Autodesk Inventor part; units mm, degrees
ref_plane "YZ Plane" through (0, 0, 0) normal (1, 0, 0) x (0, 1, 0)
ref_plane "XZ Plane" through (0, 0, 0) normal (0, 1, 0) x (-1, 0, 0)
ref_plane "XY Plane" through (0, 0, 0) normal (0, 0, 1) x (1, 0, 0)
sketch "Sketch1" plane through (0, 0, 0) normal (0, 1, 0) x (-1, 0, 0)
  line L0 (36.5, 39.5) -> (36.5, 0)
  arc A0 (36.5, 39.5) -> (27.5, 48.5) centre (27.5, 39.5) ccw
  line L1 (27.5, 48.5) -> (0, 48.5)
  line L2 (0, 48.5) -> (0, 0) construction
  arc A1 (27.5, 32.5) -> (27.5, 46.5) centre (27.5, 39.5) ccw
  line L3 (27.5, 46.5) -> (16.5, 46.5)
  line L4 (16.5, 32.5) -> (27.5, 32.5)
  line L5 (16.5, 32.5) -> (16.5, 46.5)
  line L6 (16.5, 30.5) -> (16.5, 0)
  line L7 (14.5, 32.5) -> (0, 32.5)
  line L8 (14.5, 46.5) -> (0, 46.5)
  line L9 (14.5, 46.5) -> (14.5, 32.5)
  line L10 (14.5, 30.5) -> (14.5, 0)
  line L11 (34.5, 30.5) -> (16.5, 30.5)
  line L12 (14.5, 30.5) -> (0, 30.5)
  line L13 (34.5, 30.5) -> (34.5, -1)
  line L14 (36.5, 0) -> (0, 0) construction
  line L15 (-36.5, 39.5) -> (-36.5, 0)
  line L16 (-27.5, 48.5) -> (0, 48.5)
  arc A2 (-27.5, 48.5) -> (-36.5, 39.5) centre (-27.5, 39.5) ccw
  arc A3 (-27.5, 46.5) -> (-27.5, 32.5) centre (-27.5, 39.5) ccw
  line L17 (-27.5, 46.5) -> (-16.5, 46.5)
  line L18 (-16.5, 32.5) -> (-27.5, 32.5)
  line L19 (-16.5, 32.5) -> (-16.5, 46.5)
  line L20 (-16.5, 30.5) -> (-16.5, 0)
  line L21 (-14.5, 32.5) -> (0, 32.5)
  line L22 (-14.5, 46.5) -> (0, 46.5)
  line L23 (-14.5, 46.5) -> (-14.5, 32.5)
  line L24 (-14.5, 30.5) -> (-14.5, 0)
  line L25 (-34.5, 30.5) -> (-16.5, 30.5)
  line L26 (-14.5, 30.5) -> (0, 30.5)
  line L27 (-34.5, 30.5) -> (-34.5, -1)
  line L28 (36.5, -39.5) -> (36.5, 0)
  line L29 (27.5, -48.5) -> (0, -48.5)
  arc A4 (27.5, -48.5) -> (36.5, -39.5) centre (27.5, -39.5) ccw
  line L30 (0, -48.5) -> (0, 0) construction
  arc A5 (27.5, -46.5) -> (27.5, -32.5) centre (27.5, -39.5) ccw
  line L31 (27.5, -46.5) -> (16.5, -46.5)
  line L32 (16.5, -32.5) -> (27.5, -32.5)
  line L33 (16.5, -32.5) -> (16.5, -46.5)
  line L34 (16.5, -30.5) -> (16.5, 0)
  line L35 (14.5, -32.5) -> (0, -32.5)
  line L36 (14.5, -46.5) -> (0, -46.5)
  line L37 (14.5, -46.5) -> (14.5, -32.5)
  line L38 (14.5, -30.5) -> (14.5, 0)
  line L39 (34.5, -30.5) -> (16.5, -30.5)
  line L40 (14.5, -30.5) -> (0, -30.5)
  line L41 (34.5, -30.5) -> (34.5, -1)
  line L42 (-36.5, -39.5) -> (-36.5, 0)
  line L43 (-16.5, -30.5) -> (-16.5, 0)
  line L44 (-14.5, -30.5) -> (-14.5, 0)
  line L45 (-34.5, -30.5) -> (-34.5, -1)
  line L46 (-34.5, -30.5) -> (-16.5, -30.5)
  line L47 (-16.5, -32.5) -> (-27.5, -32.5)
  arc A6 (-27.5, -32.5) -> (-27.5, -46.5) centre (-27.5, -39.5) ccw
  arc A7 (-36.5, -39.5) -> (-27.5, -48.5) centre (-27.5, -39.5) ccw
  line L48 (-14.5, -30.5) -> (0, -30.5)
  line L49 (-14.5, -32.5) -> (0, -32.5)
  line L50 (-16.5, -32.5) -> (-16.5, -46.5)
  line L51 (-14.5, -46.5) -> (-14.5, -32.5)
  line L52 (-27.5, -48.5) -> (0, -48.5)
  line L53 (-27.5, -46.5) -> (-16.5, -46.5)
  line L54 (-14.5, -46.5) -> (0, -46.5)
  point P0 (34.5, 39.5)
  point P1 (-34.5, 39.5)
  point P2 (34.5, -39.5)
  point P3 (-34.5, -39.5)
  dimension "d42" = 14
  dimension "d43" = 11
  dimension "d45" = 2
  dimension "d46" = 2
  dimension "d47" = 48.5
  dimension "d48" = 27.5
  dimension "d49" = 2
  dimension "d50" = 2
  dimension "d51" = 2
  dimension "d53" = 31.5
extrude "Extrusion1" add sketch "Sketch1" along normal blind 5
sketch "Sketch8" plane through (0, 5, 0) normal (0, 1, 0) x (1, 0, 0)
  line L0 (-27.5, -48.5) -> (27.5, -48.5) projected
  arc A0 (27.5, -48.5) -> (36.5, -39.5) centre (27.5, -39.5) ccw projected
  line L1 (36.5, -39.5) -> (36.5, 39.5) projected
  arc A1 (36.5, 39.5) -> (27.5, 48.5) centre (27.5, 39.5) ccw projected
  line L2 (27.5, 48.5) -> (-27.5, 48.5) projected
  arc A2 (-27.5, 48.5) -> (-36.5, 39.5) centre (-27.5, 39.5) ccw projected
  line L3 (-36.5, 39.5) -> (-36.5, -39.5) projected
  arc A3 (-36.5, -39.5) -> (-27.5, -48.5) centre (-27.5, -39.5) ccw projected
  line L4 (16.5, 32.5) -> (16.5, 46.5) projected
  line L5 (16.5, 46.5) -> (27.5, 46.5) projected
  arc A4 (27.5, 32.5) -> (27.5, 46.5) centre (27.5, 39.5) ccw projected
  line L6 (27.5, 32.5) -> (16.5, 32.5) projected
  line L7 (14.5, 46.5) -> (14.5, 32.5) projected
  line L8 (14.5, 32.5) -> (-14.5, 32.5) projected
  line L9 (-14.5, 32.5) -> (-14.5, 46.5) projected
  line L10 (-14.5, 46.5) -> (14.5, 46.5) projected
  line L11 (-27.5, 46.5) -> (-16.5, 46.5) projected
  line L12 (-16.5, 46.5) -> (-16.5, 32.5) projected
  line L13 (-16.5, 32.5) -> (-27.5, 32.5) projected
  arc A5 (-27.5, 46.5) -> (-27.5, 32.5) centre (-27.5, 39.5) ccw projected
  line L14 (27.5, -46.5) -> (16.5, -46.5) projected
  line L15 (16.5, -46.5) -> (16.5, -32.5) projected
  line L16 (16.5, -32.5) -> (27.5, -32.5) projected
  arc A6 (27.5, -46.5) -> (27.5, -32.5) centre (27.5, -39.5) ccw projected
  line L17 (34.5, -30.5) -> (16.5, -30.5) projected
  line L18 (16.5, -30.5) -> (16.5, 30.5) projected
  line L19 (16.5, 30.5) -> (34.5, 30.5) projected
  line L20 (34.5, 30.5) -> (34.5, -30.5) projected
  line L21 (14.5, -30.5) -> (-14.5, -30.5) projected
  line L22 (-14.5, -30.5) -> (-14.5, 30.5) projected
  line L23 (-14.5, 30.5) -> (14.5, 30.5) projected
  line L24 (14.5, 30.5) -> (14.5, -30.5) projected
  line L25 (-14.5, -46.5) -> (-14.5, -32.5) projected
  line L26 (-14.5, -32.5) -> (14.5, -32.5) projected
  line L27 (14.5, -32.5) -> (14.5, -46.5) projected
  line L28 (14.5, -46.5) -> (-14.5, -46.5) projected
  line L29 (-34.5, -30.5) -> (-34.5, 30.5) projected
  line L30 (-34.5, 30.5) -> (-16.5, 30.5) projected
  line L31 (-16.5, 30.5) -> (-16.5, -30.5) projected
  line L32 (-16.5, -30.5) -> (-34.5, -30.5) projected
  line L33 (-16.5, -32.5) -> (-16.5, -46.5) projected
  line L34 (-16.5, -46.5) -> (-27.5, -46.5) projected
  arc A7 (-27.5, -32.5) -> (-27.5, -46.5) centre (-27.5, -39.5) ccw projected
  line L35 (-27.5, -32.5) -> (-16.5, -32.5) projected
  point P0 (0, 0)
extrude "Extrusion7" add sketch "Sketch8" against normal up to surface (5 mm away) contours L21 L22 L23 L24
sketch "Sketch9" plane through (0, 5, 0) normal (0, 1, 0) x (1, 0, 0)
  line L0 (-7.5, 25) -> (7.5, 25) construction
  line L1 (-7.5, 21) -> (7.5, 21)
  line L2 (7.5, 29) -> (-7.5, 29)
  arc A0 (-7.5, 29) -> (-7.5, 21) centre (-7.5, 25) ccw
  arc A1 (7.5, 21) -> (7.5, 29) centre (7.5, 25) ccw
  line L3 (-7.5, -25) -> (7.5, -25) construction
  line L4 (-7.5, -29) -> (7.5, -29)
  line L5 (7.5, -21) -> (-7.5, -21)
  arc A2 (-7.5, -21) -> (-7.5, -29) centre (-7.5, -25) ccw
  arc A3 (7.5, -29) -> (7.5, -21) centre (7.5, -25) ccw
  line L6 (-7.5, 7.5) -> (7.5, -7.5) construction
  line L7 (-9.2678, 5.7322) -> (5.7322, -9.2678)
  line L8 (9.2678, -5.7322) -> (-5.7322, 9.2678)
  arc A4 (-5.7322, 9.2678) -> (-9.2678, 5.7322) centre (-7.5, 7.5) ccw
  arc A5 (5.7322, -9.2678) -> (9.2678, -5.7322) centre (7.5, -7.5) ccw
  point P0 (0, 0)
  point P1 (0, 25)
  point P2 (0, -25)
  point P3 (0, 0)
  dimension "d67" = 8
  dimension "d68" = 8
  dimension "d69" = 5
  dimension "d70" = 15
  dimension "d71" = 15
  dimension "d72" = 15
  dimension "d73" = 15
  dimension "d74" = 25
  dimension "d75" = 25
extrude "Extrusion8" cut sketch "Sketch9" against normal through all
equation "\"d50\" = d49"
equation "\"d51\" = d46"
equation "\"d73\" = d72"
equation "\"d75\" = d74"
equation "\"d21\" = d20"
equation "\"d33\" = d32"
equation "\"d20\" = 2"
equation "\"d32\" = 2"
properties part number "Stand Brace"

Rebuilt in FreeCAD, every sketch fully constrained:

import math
import FreeCAD as App
import Part
import Sketcher

V = App.Vector


def add_polygon(sketch, points):
    """Adds a closed chain of lines whose ends are joined by coincident constraints."""
    first, n = sketch.GeometryCount, len(points)
    for a, b in zip(points, points[1:] + points[:1]):
        sketch.addGeometry(Part.LineSegment(App.Vector(*a, 0), App.Vector(*b, 0)), False)
    for i in range(n):
        sketch.addConstraint(Sketcher.Constraint("Coincident", first + i, 2, first + (i + 1) % n, 1))

doc = App.newDocument("Part")
body = doc.addObject("PartDesign::Body", "Body")

# Sketch on XZ plane
sketch1 = body.newObject("Sketcher::SketchObject", "Sketch")
sketch1.AttachmentSupport = (doc.getObject("XZ_Plane"), [""])
sketch1.MapMode = "FlatFace"
sketch1.addGeometry(Part.LineSegment(V(-36.5, -39.5, 0), V(-36.5, 39.5, 0)), False)  # 0
sketch1.addGeometry(Part.ArcOfCircle(Part.Circle(V(-27.5, 39.5, 0), V(0, 0, 1), 9), math.radians(90), math.radians(180)), False)  # 1
sketch1.addGeometry(Part.LineSegment(V(-27.5, 48.5, 0), V(27.5, 48.5, 0)), False)  # 2
sketch1.addGeometry(Part.ArcOfCircle(Part.Circle(V(27.5, 39.5, 0), V(0, 0, 1), 9), math.radians(0), math.radians(90)), False)  # 3
sketch1.addGeometry(Part.LineSegment(V(36.5, 39.5, 0), V(36.5, -39.5, 0)), False)  # 4
sketch1.addGeometry(Part.ArcOfCircle(Part.Circle(V(27.5, -39.5, 0), V(0, 0, 1), 9), math.radians(-90), math.radians(0)), False)  # 5
sketch1.addGeometry(Part.LineSegment(V(27.5, -48.5, 0), V(-27.5, -48.5, 0)), False)  # 6
sketch1.addGeometry(Part.ArcOfCircle(Part.Circle(V(-27.5, -39.5, 0), V(0, 0, 1), 9), math.radians(180), math.radians(270)), False)  # 7
sketch1.addGeometry(Part.LineSegment(V(27.5, -32.5, 0), V(16.5, -32.5, 0)), False)  # 8
sketch1.addGeometry(Part.LineSegment(V(16.5, -32.5, 0), V(16.5, -46.5, 0)), False)  # 9
sketch1.addGeometry(Part.LineSegment(V(16.5, -46.5, 0), V(27.5, -46.5, 0)), False)  # 10
sketch1.addGeometry(Part.ArcOfCircle(Part.Circle(V(27.5, -39.5, 0), V(0, 0, 1), 7), math.radians(-90), math.radians(90)), False)  # 11
add_polygon(sketch1, [(14.5, -32.5), (-14.5, -32.5), (-14.5, -46.5), (14.5, -46.5)])  # lines 12-15
sketch1.addGeometry(Part.ArcOfCircle(Part.Circle(V(-27.5, -39.5, 0), V(0, 0, 1), 7), math.radians(90), math.radians(270)), False)  # 16
sketch1.addGeometry(Part.LineSegment(V(-27.5, -46.5, 0), V(-16.5, -46.5, 0)), False)  # 17
sketch1.addGeometry(Part.LineSegment(V(-16.5, -46.5, 0), V(-16.5, -32.5, 0)), False)  # 18
sketch1.addGeometry(Part.LineSegment(V(-16.5, -32.5, 0), V(-27.5, -32.5, 0)), False)  # 19
add_polygon(sketch1, [(34.5, 30.5), (16.5, 30.5), (16.5, -30.5), (34.5, -30.5)])  # lines 20-23
sketch1.addGeometry(Part.ArcOfCircle(Part.Circle(V(27.5, 39.5, 0), V(0, 0, 1), 7), math.radians(-90), math.radians(90)), False)  # 24
sketch1.addGeometry(Part.LineSegment(V(27.5, 46.5, 0), V(16.5, 46.5, 0)), False)  # 25
sketch1.addGeometry(Part.LineSegment(V(16.5, 46.5, 0), V(16.5, 32.5, 0)), False)  # 26
sketch1.addGeometry(Part.LineSegment(V(16.5, 32.5, 0), V(27.5, 32.5, 0)), False)  # 27
add_polygon(sketch1, [(14.5, 30.5), (-14.5, 30.5), (-14.5, -30.5), (14.5, -30.5)])  # lines 28-31
add_polygon(sketch1, [(-16.5, -30.5), (-16.5, 30.5), (-34.5, 30.5), (-34.5, -30.5)])  # lines 32-35
add_polygon(sketch1, [(-14.5, 46.5), (-14.5, 32.5), (14.5, 32.5), (14.5, 46.5)])  # lines 36-39
sketch1.addGeometry(Part.ArcOfCircle(Part.Circle(V(-27.5, 39.5, 0), V(0, 0, 1), 7), math.radians(90), math.radians(270)), False)  # 40
sketch1.addGeometry(Part.LineSegment(V(-27.5, 32.5, 0), V(-16.5, 32.5, 0)), False)  # 41
sketch1.addGeometry(Part.LineSegment(V(-16.5, 32.5, 0), V(-16.5, 46.5, 0)), False)  # 42
sketch1.addGeometry(Part.LineSegment(V(-16.5, 46.5, 0), V(-27.5, 46.5, 0)), False)  # 43
sketch1.addConstraint(Sketcher.Constraint("Tangent", 0, 2, 1, 2))
sketch1.addConstraint(Sketcher.Constraint("Tangent", 1, 1, 2, 1))
sketch1.addConstraint(Sketcher.Constraint("Tangent", 2, 2, 3, 2))
sketch1.addConstraint(Sketcher.Constraint("Tangent", 3, 1, 4, 1))
sketch1.addConstraint(Sketcher.Constraint("Tangent", 4, 2, 5, 2))
sketch1.addConstraint(Sketcher.Constraint("Tangent", 5, 1, 6, 1))
sketch1.addConstraint(Sketcher.Constraint("Tangent", 6, 2, 7, 2))
sketch1.addConstraint(Sketcher.Constraint("Tangent", 7, 1, 0, 1))
sketch1.addConstraint(Sketcher.Constraint("Coincident", 8, 2, 9, 1))
sketch1.addConstraint(Sketcher.Constraint("Coincident", 9, 2, 10, 1))
sketch1.addConstraint(Sketcher.Constraint("Tangent", 10, 2, 11, 1))
sketch1.addConstraint(Sketcher.Constraint("Tangent", 11, 2, 8, 1))
sketch1.addConstraint(Sketcher.Constraint("Tangent", 16, 2, 17, 1))
sketch1.addConstraint(Sketcher.Constraint("Coincident", 17, 2, 18, 1))
sketch1.addConstraint(Sketcher.Constraint("Coincident", 18, 2, 19, 1))
sketch1.addConstraint(Sketcher.Constraint("Tangent", 19, 2, 16, 1))
sketch1.addConstraint(Sketcher.Constraint("Tangent", 24, 2, 25, 1))
sketch1.addConstraint(Sketcher.Constraint("Coincident", 25, 2, 26, 1))
sketch1.addConstraint(Sketcher.Constraint("Coincident", 26, 2, 27, 1))
sketch1.addConstraint(Sketcher.Constraint("Tangent", 27, 2, 24, 1))
sketch1.addConstraint(Sketcher.Constraint("Tangent", 40, 2, 41, 1))
sketch1.addConstraint(Sketcher.Constraint("Coincident", 41, 2, 42, 1))
sketch1.addConstraint(Sketcher.Constraint("Coincident", 42, 2, 43, 1))
sketch1.addConstraint(Sketcher.Constraint("Tangent", 43, 2, 40, 1))
sketch1.addConstraint(Sketcher.Constraint("Vertical", 0))
sketch1.addConstraint(Sketcher.Constraint("Horizontal", 2))
sketch1.addConstraint(Sketcher.Constraint("Vertical", 4))
sketch1.addConstraint(Sketcher.Constraint("Horizontal", 6))
sketch1.addConstraint(Sketcher.Constraint("Horizontal", 8))
sketch1.addConstraint(Sketcher.Constraint("Vertical", 9))
sketch1.addConstraint(Sketcher.Constraint("Horizontal", 10))
sketch1.addConstraint(Sketcher.Constraint("Horizontal", 12))
sketch1.addConstraint(Sketcher.Constraint("Vertical", 13))
sketch1.addConstraint(Sketcher.Constraint("Horizontal", 14))
sketch1.addConstraint(Sketcher.Constraint("Vertical", 15))
sketch1.addConstraint(Sketcher.Constraint("Horizontal", 17))
sketch1.addConstraint(Sketcher.Constraint("Vertical", 18))
sketch1.addConstraint(Sketcher.Constraint("Horizontal", 19))
sketch1.addConstraint(Sketcher.Constraint("Horizontal", 20))
sketch1.addConstraint(Sketcher.Constraint("Vertical", 21))
sketch1.addConstraint(Sketcher.Constraint("Horizontal", 22))
sketch1.addConstraint(Sketcher.Constraint("Vertical", 23))
sketch1.addConstraint(Sketcher.Constraint("Horizontal", 25))
sketch1.addConstraint(Sketcher.Constraint("Vertical", 26))
sketch1.addConstraint(Sketcher.Constraint("Horizontal", 27))
sketch1.addConstraint(Sketcher.Constraint("Horizontal", 28))
sketch1.addConstraint(Sketcher.Constraint("Vertical", 29))
sketch1.addConstraint(Sketcher.Constraint("Horizontal", 30))
sketch1.addConstraint(Sketcher.Constraint("Vertical", 31))
sketch1.addConstraint(Sketcher.Constraint("Vertical", 32))
sketch1.addConstraint(Sketcher.Constraint("Horizontal", 33))
sketch1.addConstraint(Sketcher.Constraint("Vertical", 34))
sketch1.addConstraint(Sketcher.Constraint("Horizontal", 35))
sketch1.addConstraint(Sketcher.Constraint("Vertical", 36))
sketch1.addConstraint(Sketcher.Constraint("Horizontal", 37))
sketch1.addConstraint(Sketcher.Constraint("Vertical", 38))
sketch1.addConstraint(Sketcher.Constraint("Horizontal", 39))
sketch1.addConstraint(Sketcher.Constraint("Horizontal", 41))
sketch1.addConstraint(Sketcher.Constraint("Vertical", 42))
sketch1.addConstraint(Sketcher.Constraint("Horizontal", 43))
sketch1.addConstraint(Sketcher.Constraint("Coincident", 11, 3, 5, 3))
sketch1.addConstraint(Sketcher.Constraint("Coincident", 16, 3, 7, 3))
sketch1.addConstraint(Sketcher.Constraint("Coincident", 24, 3, 3, 3))
sketch1.addConstraint(Sketcher.Constraint("Coincident", 40, 3, 1, 3))
sketch1.addConstraint(Sketcher.Constraint("Equal", 1, 3))
sketch1.addConstraint(Sketcher.Constraint("Equal", 3, 5))
sketch1.addConstraint(Sketcher.Constraint("Equal", 5, 7))
sketch1.addConstraint(Sketcher.Constraint("Equal", 11, 16))
sketch1.addConstraint(Sketcher.Constraint("Equal", 16, 24))
sketch1.addConstraint(Sketcher.Constraint("Equal", 24, 40))
sketch1.addConstraint(Sketcher.Constraint("Symmetric", 1, 3, 5, 3, -1, 1))
sketch1.addConstraint(Sketcher.Constraint("Symmetric", 28, 2, 30, 2, -1, 1))
sketch1.addConstraint(Sketcher.Constraint("Symmetric", 21, 2, 32, 2, -1, 1))
sketch1.addConstraint(Sketcher.Constraint("Symmetric", 23, 2, 34, 2, -1, 1))
sketch1.addConstraint(Sketcher.Constraint("Symmetric", 15, 2, 36, 2, -1, 1))
sketch1.addConstraint(Sketcher.Constraint("Symmetric", 13, 2, 38, 2, -1, 1))
sketch1.addConstraint(Sketcher.Constraint("Horizontal", 11, 2, 12, 2))
sketch1.addConstraint(Sketcher.Constraint("Horizontal", 10, 2, 13, 2))
sketch1.addConstraint(Sketcher.Constraint("Horizontal", 23, 2, 28, 2))
sketch1.addConstraint(Sketcher.Constraint("Horizontal", 22, 2, 29, 2))
sketch1.addConstraint(Sketcher.Constraint("Vertical", 9, 2, 20, 2))
sketch1.addConstraint(Sketcher.Constraint("Vertical", 21, 2, 25, 2))
sketch1.addConstraint(Sketcher.Constraint("Vertical", 13, 2, 28, 2))
sketch1.addConstraint(Sketcher.Constraint("Vertical", 15, 2, 30, 2))
sketch1.addConstraint(Sketcher.Constraint("Vertical", 18, 2, 32, 2))
sketch1.addConstraint(Sketcher.Constraint("Vertical", 35, 2, 41, 2))
sketch1.addConstraint(Sketcher.Constraint("Radius", 11, 7.0))
sketch1.addConstraint(Sketcher.Constraint("DistanceX", 8, 2, 8, 1, 11.0))
sketch1.addConstraint(Sketcher.Constraint("Radius", 1, 9.0))
sketch1.addConstraint(Sketcher.Constraint("DistanceX", 14, 2, 9, 2, 2.0))
sketch1.addConstraint(Sketcher.Constraint("DistanceY", 8, 2, 21, 2, 2.0))
sketch1.addConstraint(Sketcher.Constraint("DistanceX", 22, 2, 4, 2, 2.0))
sketch1.addConstraint(Sketcher.Constraint("DistanceX", 1, 3, -1, 1, 27.5))
sketch1.addConstraint(Sketcher.Constraint("DistanceY", -1, 1, 1, 1, 48.5))
pad1 = body.newObject("PartDesign::Pad", "Pad")
pad1.Profile = sketch1
pad1.Length = 5
pad1.Reversed = True

# Sketch on XZ plane
sketch2 = body.newObject("Sketcher::SketchObject", "Sketch001")
sketch2.AttachmentSupport = (doc.getObject("XZ_Plane"), [""])
sketch2.MapMode = "FlatFace"
sketch2.AttachmentOffset = App.Placement(V(0, 0, -5), App.Rotation())
add_polygon(sketch2, [(-14.5, 30.5), (14.5, 30.5), (14.5, -30.5), (-14.5, -30.5)])  # lines 0-3
sketch2.addConstraint(Sketcher.Constraint("Horizontal", 0))
sketch2.addConstraint(Sketcher.Constraint("Vertical", 1))
sketch2.addConstraint(Sketcher.Constraint("Horizontal", 2))
sketch2.addConstraint(Sketcher.Constraint("Vertical", 3))
sketch2.addConstraint(Sketcher.Constraint("Symmetric", 0, 2, 2, 2, -1, 1))
sketch2.addConstraint(Sketcher.Constraint("DistanceX", 0, 1, 0, 2, 29.0))
sketch2.addConstraint(Sketcher.Constraint("DistanceY", 1, 2, 1, 1, 61.0))
pad2 = body.newObject("PartDesign::Pad", "Pad001")
pad2.Profile = sketch2
pad2.Length = 5

# Sketch on XZ plane
sketch3 = body.newObject("Sketcher::SketchObject", "Sketch002")
sketch3.AttachmentSupport = (doc.getObject("XZ_Plane"), [""])
sketch3.MapMode = "FlatFace"
sketch3.AttachmentOffset = App.Placement(V(0, 0, -5), App.Rotation())
sketch3.addGeometry(Part.ArcOfCircle(Part.Circle(V(-7.5, -25, 0), V(0, 0, 1), 4), math.radians(90), math.radians(270)), False)
sketch3.addGeometry(Part.LineSegment(V(-7.5, -21, 0), V(7.5, -21, 0)), False)
sketch3.addGeometry(Part.ArcOfCircle(Part.Circle(V(7.5, -25, 0), V(0, 0, 1), 4), math.radians(-90), math.radians(90)), False)
sketch3.addGeometry(Part.LineSegment(V(7.5, -29, 0), V(-7.5, -29, 0)), False)
sketch3.addGeometry(Part.ArcOfCircle(Part.Circle(V(-7.5, 25, 0), V(0, 0, 1), 4), math.radians(90), math.radians(270)), False)
sketch3.addGeometry(Part.LineSegment(V(-7.5, 29, 0), V(7.5, 29, 0)), False)
sketch3.addGeometry(Part.ArcOfCircle(Part.Circle(V(7.5, 25, 0), V(0, 0, 1), 4), math.radians(-90), math.radians(90)), False)
sketch3.addGeometry(Part.LineSegment(V(7.5, 21, 0), V(-7.5, 21, 0)), False)
sketch3.addGeometry(Part.ArcOfCircle(Part.Circle(V(-7.5, -7.5, 0), V(0, 0, 1), 2.500047), math.radians(135), math.radians(315)), False)
sketch3.addGeometry(Part.LineSegment(V(-9.2678, -5.7322, 0), V(5.7322, 9.2678, 0)), False)
sketch3.addGeometry(Part.ArcOfCircle(Part.Circle(V(7.5, 7.5, 0), V(0, 0, 1), 2.500047), math.radians(-45), math.radians(135)), False)
sketch3.addGeometry(Part.LineSegment(V(9.2678, 5.7322, 0), V(-5.7322, -9.2678, 0)), False)
sketch3.addConstraint(Sketcher.Constraint("Tangent", 0, 1, 1, 1))
sketch3.addConstraint(Sketcher.Constraint("Tangent", 1, 2, 2, 2))
sketch3.addConstraint(Sketcher.Constraint("Tangent", 2, 1, 3, 1))
sketch3.addConstraint(Sketcher.Constraint("Tangent", 3, 2, 0, 2))
sketch3.addConstraint(Sketcher.Constraint("Tangent", 4, 1, 5, 1))
sketch3.addConstraint(Sketcher.Constraint("Tangent", 5, 2, 6, 2))
sketch3.addConstraint(Sketcher.Constraint("Tangent", 6, 1, 7, 1))
sketch3.addConstraint(Sketcher.Constraint("Tangent", 7, 2, 4, 2))
sketch3.addConstraint(Sketcher.Constraint("Tangent", 8, 1, 9, 1))
sketch3.addConstraint(Sketcher.Constraint("Tangent", 9, 2, 10, 2))
sketch3.addConstraint(Sketcher.Constraint("Tangent", 10, 1, 11, 1))
sketch3.addConstraint(Sketcher.Constraint("Tangent", 11, 2, 8, 2))
sketch3.addConstraint(Sketcher.Constraint("Horizontal", 1))
sketch3.addConstraint(Sketcher.Constraint("Horizontal", 3))
sketch3.addConstraint(Sketcher.Constraint("Horizontal", 5))
sketch3.addConstraint(Sketcher.Constraint("Horizontal", 7))
sketch3.addConstraint(Sketcher.Constraint("Equal", 2, 4))
sketch3.addConstraint(Sketcher.Constraint("Equal", 8, 10))
sketch3.addConstraint(Sketcher.Constraint("Symmetric", 2, 3, 4, 3, -1, 1))
sketch3.addConstraint(Sketcher.Constraint("Symmetric", 8, 3, 10, 3, -1, 1))
sketch3.addConstraint(Sketcher.Constraint("Vertical", 0, 3, 4, 3))
sketch3.addConstraint(Sketcher.Constraint("Vertical", 2, 3, 6, 3))
sketch3.addConstraint(Sketcher.Constraint("Vertical", 4, 3, 8, 3))
sketch3.addConstraint(Sketcher.Constraint("Radius", 0, 4.0))
sketch3.addConstraint(Sketcher.Constraint("Radius", 8, 2.5))
sketch3.addConstraint(Sketcher.Constraint("DistanceX", 1, 1, 1, 2, 15.0))
sketch3.addConstraint(Sketcher.Constraint("DistanceY", 0, 3, -1, 1, 25.0))
sketch3.addConstraint(Sketcher.Constraint("DistanceY", 8, 3, 10, 3, 15.0))
pocket1 = body.newObject("PartDesign::Pocket", "Pocket")
pocket1.Profile = sketch3
pocket1.Type = "ThroughAll"
pocket1.Reversed = True

doc.recompute()
